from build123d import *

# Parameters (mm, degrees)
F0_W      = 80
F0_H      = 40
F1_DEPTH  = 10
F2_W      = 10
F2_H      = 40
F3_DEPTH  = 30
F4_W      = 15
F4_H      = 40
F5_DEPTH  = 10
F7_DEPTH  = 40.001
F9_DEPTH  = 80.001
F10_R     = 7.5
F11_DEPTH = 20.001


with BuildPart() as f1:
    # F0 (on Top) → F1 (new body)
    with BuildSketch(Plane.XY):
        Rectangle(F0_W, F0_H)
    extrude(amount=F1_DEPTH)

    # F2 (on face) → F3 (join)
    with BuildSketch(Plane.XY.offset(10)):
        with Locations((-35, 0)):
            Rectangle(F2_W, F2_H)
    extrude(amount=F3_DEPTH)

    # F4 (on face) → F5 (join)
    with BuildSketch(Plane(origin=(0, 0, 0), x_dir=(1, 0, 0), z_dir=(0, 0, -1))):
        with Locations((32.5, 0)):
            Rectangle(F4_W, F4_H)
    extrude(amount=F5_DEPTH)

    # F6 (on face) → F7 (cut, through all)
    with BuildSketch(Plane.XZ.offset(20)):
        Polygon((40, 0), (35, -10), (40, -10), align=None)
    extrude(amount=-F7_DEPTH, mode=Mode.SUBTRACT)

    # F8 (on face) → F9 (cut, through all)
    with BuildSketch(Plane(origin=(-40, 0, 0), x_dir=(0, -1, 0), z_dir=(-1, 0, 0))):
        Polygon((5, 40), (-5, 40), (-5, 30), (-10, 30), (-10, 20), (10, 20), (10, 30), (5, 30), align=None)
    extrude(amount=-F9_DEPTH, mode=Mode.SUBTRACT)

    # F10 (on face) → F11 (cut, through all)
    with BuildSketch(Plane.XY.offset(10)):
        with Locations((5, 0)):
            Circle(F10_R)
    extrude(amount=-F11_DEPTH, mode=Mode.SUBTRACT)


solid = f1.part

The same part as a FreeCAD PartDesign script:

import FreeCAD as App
import Part
import Sketcher
from FreeCAD import Vector

doc = App.newDocument("Part")
body = doc.addObject("PartDesign::Body", "Body")

sketch1 = body.newObject("Sketcher::SketchObject", "Sketch")
sketch1.AttachmentSupport = (doc.getObject("XY_Plane"), [""])
sketch1.MapMode = "FlatFace"
sketch1.addGeometry(Part.LineSegment(Vector(-40, 20, 0), Vector(-40, -20, 0)), False)
sketch1.addGeometry(Part.LineSegment(Vector(-40, -20, 0), Vector(40, -20, 0)), False)
sketch1.addGeometry(Part.LineSegment(Vector(40, -20, 0), Vector(40, 20, 0)), False)
sketch1.addGeometry(Part.LineSegment(Vector(40, 20, 0), Vector(-40, 20, 0)), False)
sketch1.addConstraint(Sketcher.Constraint("Coincident", 0, 2, 1, 1))
sketch1.addConstraint(Sketcher.Constraint("Coincident", 1, 2, 2, 1))
sketch1.addConstraint(Sketcher.Constraint("Coincident", 2, 2, 3, 1))
sketch1.addConstraint(Sketcher.Constraint("Coincident", 3, 2, 0, 1))
sketch1.addConstraint(Sketcher.Constraint("Vertical", 0))
sketch1.addConstraint(Sketcher.Constraint("Horizontal", 1))
sketch1.addConstraint(Sketcher.Constraint("Vertical", 2))
sketch1.addConstraint(Sketcher.Constraint("Horizontal", 3))
sketch1.addConstraint(Sketcher.Constraint("Symmetric", 0, 2, 2, 2, -1, 1))
sketch1.addConstraint(Sketcher.Constraint("DistanceX", 1, 1, 1, 2, 80.0))
sketch1.addConstraint(Sketcher.Constraint("DistanceY", 0, 2, 0, 1, 40.0))
pad1 = body.newObject("PartDesign::Pad", "Pad")
pad1.Profile = sketch1
pad1.Length = 10

sketch2 = body.newObject("Sketcher::SketchObject", "Sketch001")
sketch2.AttachmentSupport = (doc.getObject("XY_Plane"), [""])
sketch2.MapMode = "FlatFace"
sketch2.AttachmentOffset = App.Placement(Vector(0, 0, 10), App.Rotation())
sketch2.addGeometry(Part.LineSegment(Vector(-40, 20, 0), Vector(-40, -20, 0)), False)
sketch2.addGeometry(Part.LineSegment(Vector(-40, -20, 0), Vector(-30, -20, 0)), False)
sketch2.addGeometry(Part.LineSegment(Vector(-30, -20, 0), Vector(-30, 20, 0)), False)
sketch2.addGeometry(Part.LineSegment(Vector(-30, 20, 0), Vector(-40, 20, 0)), False)
sketch2.addConstraint(Sketcher.Constraint("Coincident", 0, 2, 1, 1))
sketch2.addConstraint(Sketcher.Constraint("Coincident", 1, 2, 2, 1))
sketch2.addConstraint(Sketcher.Constraint("Coincident", 2, 2, 3, 1))
sketch2.addConstraint(Sketcher.Constraint("Coincident", 3, 2, 0, 1))
sketch2.addConstraint(Sketcher.Constraint("Vertical", 0))
sketch2.addConstraint(Sketcher.Constraint("Horizontal", 1))
sketch2.addConstraint(Sketcher.Constraint("Vertical", 2))
sketch2.addConstraint(Sketcher.Constraint("Horizontal", 3))
sketch2.addConstraint(Sketcher.Constraint("DistanceX", 1, 1, 1, 2, 10.0))
sketch2.addConstraint(Sketcher.Constraint("DistanceY", 0, 2, 0, 1, 40.0))
sketch2.addConstraint(Sketcher.Constraint("DistanceX", 0, 2, -1, 1, 40.0))
sketch2.addConstraint(Sketcher.Constraint("DistanceY", 0, 2, -1, 1, 20.0))
pad2 = body.newObject("PartDesign::Pad", "Pad001")
pad2.Profile = sketch2
pad2.Length = 30

sketch3 = body.newObject("Sketcher::SketchObject", "Sketch002")
sketch3.AttachmentSupport = (doc.getObject("XY_Plane"), [""])
sketch3.MapMode = "FlatFace"
sketch3.addGeometry(Part.LineSegment(Vector(25, -20, 0), Vector(25, 20, 0)), False)
sketch3.addGeometry(Part.LineSegment(Vector(25, 20, 0), Vector(40, 20, 0)), False)
sketch3.addGeometry(Part.LineSegment(Vector(40, 20, 0), Vector(40, -20, 0)), False)
sketch3.addGeometry(Part.LineSegment(Vector(40, -20, 0), Vector(25, -20, 0)), False)
sketch3.addConstraint(Sketcher.Constraint("Coincident", 0, 2, 1, 1))
sketch3.addConstraint(Sketcher.Constraint("Coincident", 1, 2, 2, 1))
sketch3.addConstraint(Sketcher.Constraint("Coincident", 2, 2, 3, 1))
sketch3.addConstraint(Sketcher.Constraint("Coincident", 3, 2, 0, 1))
sketch3.addConstraint(Sketcher.Constraint("Vertical", 0))
sketch3.addConstraint(Sketcher.Constraint("Horizontal", 1))
sketch3.addConstraint(Sketcher.Constraint("Vertical", 2))
sketch3.addConstraint(Sketcher.Constraint("Horizontal", 3))
sketch3.addConstraint(Sketcher.Constraint("DistanceX", 1, 1, 1, 2, 15.0))
sketch3.addConstraint(Sketcher.Constraint("DistanceY", 0, 1, 0, 2, 40.0))
sketch3.addConstraint(Sketcher.Constraint("DistanceX", -1, 1, 0, 2, 25.0))
sketch3.addConstraint(Sketcher.Constraint("DistanceY", -1, 1, 0, 2, 20.0))
pad3 = body.newObject("PartDesign::Pad", "Pad002")
pad3.Profile = sketch3
pad3.Length = 10
pad3.Reversed = True

sketch4 = body.newObject("Sketcher::SketchObject", "Sketch003")
sketch4.AttachmentSupport = (doc.getObject("XZ_Plane"), [""])
sketch4.MapMode = "FlatFace"
sketch4.AttachmentOffset = App.Placement(Vector(0, 0, 20), App.Rotation())
sketch4.addGeometry(Part.LineSegment(Vector(40, 0, 0), Vector(35, -10, 0)), False)
sketch4.addGeometry(Part.LineSegment(Vector(35, -10, 0), Vector(40, -10, 0)), False)
sketch4.addGeometry(Part.LineSegment(Vector(40, -10, 0), Vector(40, 0, 0)), False)
sketch4.addConstraint(Sketcher.Constraint("Coincident", 0, 2, 1, 1))
sketch4.addConstraint(Sketcher.Constraint("Coincident", 1, 2, 2, 1))
sketch4.addConstraint(Sketcher.Constraint("Coincident", 2, 2, 0, 1))
sketch4.addConstraint(Sketcher.Constraint("Horizontal", 1))
sketch4.addConstraint(Sketcher.Constraint("Vertical", 2))
sketch4.addConstraint(Sketcher.Constraint("PointOnObject", 2, 2, -1))
sketch4.addConstraint(Sketcher.Constraint("DistanceX", 1, 1, 1, 2, 5.0))
sketch4.addConstraint(Sketcher.Constraint("DistanceY", 2, 1, 2, 2, 10.0))
sketch4.addConstraint(Sketcher.Constraint("DistanceX", -1, 1, 0, 2, 35.0))
pocket1 = body.newObject("PartDesign::Pocket", "Pocket")
pocket1.Profile = sketch4
pocket1.Type = "ThroughAll"

sketch5 = body.newObject("Sketcher::SketchObject", "Sketch004")
sketch5.AttachmentSupport = (doc.getObject("YZ_Plane"), [""])
sketch5.MapMode = "FlatFace"
sketch5.AttachmentOffset = App.Placement(Vector(0, 0, -40), App.Rotation())
sketch5.addGeometry(Part.LineSegment(Vector(-5, 40, 0), Vector(5, 40, 0)), False)
sketch5.addGeometry(Part.LineSegment(Vector(5, 40, 0), Vector(5, 30, 0)), False)
sketch5.addGeometry(Part.LineSegment(Vector(5, 30, 0), Vector(10, 30, 0)), False)
sketch5.addGeometry(Part.LineSegment(Vector(10, 30, 0), Vector(10, 20, 0)), False)
sketch5.addGeometry(Part.LineSegment(Vector(10, 20, 0), Vector(-10, 20, 0)), False)
sketch5.addGeometry(Part.LineSegment(Vector(-10, 20, 0), Vector(-10, 30, 0)), False)
sketch5.addGeometry(Part.LineSegment(Vector(-10, 30, 0), Vector(-5, 30, 0)), False)
sketch5.addGeometry(Part.LineSegment(Vector(-5, 30, 0), Vector(-5, 40, 0)), False)
sketch5.addConstraint(Sketcher.Constraint("Coincident", 0, 2, 1, 1))
sketch5.addConstraint(Sketcher.Constraint("Coincident", 1, 2, 2, 1))
sketch5.addConstraint(Sketcher.Constraint("Coincident", 2, 2, 3, 1))
sketch5.addConstraint(Sketcher.Constraint("Coincident", 3, 2, 4, 1))
sketch5.addConstraint(Sketcher.Constraint("Coincident", 4, 2, 5, 1))
sketch5.addConstraint(Sketcher.Constraint("Coincident", 5, 2, 6, 1))
sketch5.addConstraint(Sketcher.Constraint("Coincident", 6, 2, 7, 1))
sketch5.addConstraint(Sketcher.Constraint("Coincident", 7, 2, 0, 1))
sketch5.addConstraint(Sketcher.Constraint("Horizontal", 0))
sketch5.addConstraint(Sketcher.Constraint("Vertical", 1))
sketch5.addConstraint(Sketcher.Constraint("Horizontal", 2))
sketch5.addConstraint(Sketcher.Constraint("Vertical", 3))
sketch5.addConstraint(Sketcher.Constraint("Horizontal", 4))
sketch5.addConstraint(Sketcher.Constraint("Vertical", 5))
sketch5.addConstraint(Sketcher.Constraint("Horizontal", 6))
sketch5.addConstraint(Sketcher.Constraint("Vertical", 7))
sketch5.addConstraint(Sketcher.Constraint("Symmetric", 2, 2, 5, 2, -2))
sketch5.addConstraint(Sketcher.Constraint("Equal", 2, 6))
sketch5.addConstraint(Sketcher.Constraint("Equal", 0, 1))
sketch5.addConstraint(Sketcher.Constraint("Equal", 1, 3))
sketch5.addConstraint(Sketcher.Constraint("DistanceX", 0, 1, 0, 2, 10.0))
sketch5.addConstraint(Sketcher.Constraint("DistanceX", 2, 1, 2, 2, 5.0))
sketch5.addConstraint(Sketcher.Constraint("DistanceY", -1, 1, 0, 2, 40.0))
pocket2 = body.newObject("PartDesign::Pocket", "Pocket001")
pocket2.Profile = sketch5
pocket2.Type = "ThroughAll"
pocket2.Reversed = True

sketch6 = body.newObject("Sketcher::SketchObject", "Sketch005")
sketch6.AttachmentSupport = (doc.getObject("XY_Plane"), [""])
sketch6.MapMode = "FlatFace"
sketch6.AttachmentOffset = App.Placement(Vector(0, 0, 10), App.Rotation())
sketch6.addGeometry(Part.Circle(Vector(5, 0, 0), Vector(0, 0, 1), 8), False)
sketch6.addConstraint(Sketcher.Constraint("PointOnObject", 0, 3, -1))
sketch6.addConstraint(Sketcher.Constraint("Diameter", 0, 15.0))
sketch6.addConstraint(Sketcher.Constraint("DistanceX", -1, 1, 0, 3, 5.0))
pocket3 = body.newObject("PartDesign::Pocket", "Pocket002")
pocket3.Profile = sketch6
pocket3.Type = "ThroughAll"

doc.recompute()
